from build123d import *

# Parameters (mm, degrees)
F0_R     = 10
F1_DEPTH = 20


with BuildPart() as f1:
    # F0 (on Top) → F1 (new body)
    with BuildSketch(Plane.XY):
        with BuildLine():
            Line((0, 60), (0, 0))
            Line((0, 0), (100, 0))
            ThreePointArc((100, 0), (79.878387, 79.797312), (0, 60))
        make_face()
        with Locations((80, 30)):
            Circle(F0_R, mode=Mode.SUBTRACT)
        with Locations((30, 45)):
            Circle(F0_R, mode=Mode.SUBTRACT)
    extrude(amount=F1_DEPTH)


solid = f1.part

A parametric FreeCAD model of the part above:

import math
import FreeCAD as App
import Part
import Sketcher

V = App.Vector

doc = App.newDocument("Part")
params = doc.addObject("Spreadsheet::Sheet", "Params")
for row, (alias, value) in enumerate([
    ("sketch1_diameter", "20 mm"),
    ("sketch1_width", "100 mm"),
    ("sketch1_height", "60 mm"),
    ("sketch1_radius", "58.31 mm"),
    ("pad1_length", "20 mm"),
], start=1):
    params.set(f"A{row}", alias)
    params.set(f"B{row}", "=" + value)
    params.setAlias(f"B{row}", alias)

body = doc.addObject("PartDesign::Body", "Body")

# Sketch on XY plane
sketch1 = doc.addObject("Sketcher::SketchObject", "Sketch")
body.addObject(sketch1)
sketch1.AttachmentSupport = (doc.XY_Plane, [""])
sketch1.MapMode = "FlatFace"
sketch1.addGeometry([
    Part.LineSegment(V(0, 60, 0), V(0, 0, 0)),  # 0
    Part.LineSegment(V(0, 0, 0), V(100, 0, 0)),  # 1
    Part.ArcOfCircle(Part.Circle(V(49.87814, 29.796899, 0), V(0, 0, 1), 58.31), math.radians(-30.731022), math.radians(148.803509)),  # 2
    Part.Circle(V(80, 30, 0), V(0, 0, 1), 10),  # 3
    Part.Circle(V(30, 45, 0), V(0, 0, 1), 10),  # 4
], False)
sketch1.addConstraint([
    Sketcher.Constraint("Coincident", 0, 2, 1, 1),
    Sketcher.Constraint("Coincident", 1, 2, 2, 1),
    Sketcher.Constraint("Coincident", 2, 2, 0, 1),
    Sketcher.Constraint("Vertical", 0),
    Sketcher.Constraint("Horizontal", 1),
    Sketcher.Constraint("Coincident", 0, 2, -1, 1),
    Sketcher.Constraint("Equal", 3, 4),
    Sketcher.Constraint("Diameter", 3, 20.0),
    Sketcher.Constraint("DistanceX", 1, 1, 1, 2, 100.0),
    Sketcher.Constraint("DistanceY", 0, 2, 0, 1, 60.0),
    Sketcher.Constraint("Radius", 2, 58.31),
    Sketcher.Constraint("DistanceX", -1, 1, 3, 3, 80.0),
    Sketcher.Constraint("DistanceY", -1, 1, 3, 3, 30.0),
    Sketcher.Constraint("DistanceX", -1, 1, 4, 3, 30.0),
    Sketcher.Constraint("DistanceY", -1, 1, 4, 3, 45.0),
])
sketch1.setExpression("Constraints[7]", "Params.sketch1_diameter")
sketch1.setExpression("Constraints[8]", "Params.sketch1_width")
sketch1.setExpression("Constraints[9]", "Params.sketch1_height")
sketch1.setExpression("Constraints[10]", "Params.sketch1_radius")
pad1 = doc.addObject("PartDesign::Pad", "Pad")
body.addObject(pad1)
pad1.Profile = sketch1
pad1.setExpression("Length", "Params.pad1_length")

doc.recompute()
